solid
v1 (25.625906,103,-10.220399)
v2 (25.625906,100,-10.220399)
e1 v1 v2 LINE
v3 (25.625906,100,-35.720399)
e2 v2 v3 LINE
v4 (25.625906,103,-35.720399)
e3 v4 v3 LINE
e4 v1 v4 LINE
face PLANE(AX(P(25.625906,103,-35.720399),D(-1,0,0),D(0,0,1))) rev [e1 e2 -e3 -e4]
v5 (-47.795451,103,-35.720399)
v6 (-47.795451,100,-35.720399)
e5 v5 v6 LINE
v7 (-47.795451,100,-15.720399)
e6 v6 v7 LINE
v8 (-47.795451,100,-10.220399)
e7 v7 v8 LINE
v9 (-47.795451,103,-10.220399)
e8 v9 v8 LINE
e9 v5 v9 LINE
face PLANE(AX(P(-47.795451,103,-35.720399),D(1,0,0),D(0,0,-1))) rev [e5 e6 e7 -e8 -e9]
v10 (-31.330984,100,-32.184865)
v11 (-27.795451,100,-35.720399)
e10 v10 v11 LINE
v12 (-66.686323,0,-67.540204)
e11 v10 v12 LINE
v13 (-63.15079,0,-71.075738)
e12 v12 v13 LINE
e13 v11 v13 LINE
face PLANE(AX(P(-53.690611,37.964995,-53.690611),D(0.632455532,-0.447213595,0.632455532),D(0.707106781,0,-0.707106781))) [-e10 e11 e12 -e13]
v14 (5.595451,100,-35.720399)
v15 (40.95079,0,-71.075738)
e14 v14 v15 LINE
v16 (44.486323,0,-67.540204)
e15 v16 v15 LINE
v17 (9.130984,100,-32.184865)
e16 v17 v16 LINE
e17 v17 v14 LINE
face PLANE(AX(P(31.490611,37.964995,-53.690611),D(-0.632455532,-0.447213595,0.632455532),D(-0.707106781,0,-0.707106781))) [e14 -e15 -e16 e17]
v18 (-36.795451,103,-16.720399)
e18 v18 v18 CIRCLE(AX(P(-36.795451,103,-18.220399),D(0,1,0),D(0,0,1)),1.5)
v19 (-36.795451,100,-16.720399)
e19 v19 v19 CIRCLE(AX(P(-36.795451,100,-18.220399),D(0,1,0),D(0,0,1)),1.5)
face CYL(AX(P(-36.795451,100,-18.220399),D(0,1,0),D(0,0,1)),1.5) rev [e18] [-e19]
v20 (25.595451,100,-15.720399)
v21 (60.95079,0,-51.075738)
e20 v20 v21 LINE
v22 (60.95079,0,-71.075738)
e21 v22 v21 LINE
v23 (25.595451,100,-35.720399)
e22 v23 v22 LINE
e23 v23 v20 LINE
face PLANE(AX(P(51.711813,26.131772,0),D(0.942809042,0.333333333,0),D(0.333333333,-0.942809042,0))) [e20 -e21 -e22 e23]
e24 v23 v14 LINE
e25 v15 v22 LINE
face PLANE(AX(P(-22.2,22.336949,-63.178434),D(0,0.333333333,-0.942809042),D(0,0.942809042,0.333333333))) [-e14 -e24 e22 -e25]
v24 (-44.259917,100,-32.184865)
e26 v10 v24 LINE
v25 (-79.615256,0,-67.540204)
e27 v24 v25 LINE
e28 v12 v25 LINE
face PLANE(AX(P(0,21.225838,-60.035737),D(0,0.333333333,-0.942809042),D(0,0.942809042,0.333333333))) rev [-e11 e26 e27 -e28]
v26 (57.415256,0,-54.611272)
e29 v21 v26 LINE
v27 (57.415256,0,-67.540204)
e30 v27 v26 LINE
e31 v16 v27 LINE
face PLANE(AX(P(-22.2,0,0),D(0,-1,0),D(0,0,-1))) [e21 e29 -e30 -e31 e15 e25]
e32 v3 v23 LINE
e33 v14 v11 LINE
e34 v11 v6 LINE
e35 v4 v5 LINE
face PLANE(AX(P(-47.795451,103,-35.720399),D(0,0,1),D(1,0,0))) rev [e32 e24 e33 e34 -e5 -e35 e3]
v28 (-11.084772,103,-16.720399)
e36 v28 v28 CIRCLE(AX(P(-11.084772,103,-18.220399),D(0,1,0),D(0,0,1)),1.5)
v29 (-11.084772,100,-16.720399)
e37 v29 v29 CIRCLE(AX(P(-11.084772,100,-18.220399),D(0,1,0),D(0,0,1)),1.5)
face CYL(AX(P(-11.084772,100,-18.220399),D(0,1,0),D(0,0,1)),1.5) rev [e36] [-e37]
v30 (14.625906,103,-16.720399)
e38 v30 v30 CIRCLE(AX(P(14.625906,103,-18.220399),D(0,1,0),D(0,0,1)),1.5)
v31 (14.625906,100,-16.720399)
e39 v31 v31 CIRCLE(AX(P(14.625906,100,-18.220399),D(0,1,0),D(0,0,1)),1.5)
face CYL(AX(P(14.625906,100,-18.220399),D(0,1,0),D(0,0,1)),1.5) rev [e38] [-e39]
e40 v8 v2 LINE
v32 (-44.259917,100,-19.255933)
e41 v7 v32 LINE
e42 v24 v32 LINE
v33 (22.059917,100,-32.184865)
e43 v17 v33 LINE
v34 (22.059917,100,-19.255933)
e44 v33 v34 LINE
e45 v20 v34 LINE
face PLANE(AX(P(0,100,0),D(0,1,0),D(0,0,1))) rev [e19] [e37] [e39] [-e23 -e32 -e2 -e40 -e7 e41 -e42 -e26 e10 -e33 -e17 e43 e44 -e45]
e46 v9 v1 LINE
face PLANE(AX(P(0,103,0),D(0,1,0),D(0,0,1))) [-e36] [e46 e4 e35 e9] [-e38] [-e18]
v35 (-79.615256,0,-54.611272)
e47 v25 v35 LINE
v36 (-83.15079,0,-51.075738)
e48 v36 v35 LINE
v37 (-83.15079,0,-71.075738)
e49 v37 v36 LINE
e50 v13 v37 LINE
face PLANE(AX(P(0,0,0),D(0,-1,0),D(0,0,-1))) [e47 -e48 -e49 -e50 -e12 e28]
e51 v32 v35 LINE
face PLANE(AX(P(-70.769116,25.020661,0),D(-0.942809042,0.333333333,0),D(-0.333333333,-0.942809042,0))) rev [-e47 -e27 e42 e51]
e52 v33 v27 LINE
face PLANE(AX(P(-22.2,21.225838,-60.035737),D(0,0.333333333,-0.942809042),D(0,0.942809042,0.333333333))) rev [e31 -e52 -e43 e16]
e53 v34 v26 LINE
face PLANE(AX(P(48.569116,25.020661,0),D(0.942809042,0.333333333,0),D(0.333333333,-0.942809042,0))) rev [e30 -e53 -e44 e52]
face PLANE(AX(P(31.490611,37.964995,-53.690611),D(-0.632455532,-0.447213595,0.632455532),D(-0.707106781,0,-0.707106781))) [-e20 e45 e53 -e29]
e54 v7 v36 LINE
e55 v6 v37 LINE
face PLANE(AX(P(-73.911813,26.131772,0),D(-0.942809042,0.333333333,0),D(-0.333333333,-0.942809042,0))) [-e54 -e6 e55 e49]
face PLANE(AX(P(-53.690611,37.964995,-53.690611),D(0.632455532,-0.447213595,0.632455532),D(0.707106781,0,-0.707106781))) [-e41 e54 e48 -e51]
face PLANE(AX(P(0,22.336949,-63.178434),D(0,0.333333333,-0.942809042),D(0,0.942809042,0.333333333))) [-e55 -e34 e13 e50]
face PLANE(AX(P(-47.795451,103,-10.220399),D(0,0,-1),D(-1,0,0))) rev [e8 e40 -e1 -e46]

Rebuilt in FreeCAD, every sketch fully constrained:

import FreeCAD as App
import Part
import Sketcher
from FreeCAD import Vector
Q = App.Units.Quantity

doc = App.newDocument("Part")
params = doc.addObject("Spreadsheet::Sheet", "Params")
for row, (alias, value) in enumerate([
    ("sketch1_height", "25.5 mm"),
    ("pad1_length", "3 mm"),
    ("sketch2_diameter", "3 mm"),
    ("pocket1_length", "3 mm"),
    ("sketch3_width", "20 mm"),
    ("sketch4_width", "20 mm"),
], start=1):
    params.set(f"A{row}", alias)
    params.set(f"B{row}", "=" + value)
    params.setAlias(f"B{row}", alias)

body = doc.addObject("PartDesign::Body", "Body")

sketch1 = body.newObject("Sketcher::SketchObject", "Sketch")
sketch1.AttachmentSupport = (doc.getObject("XZ_Plane"), [""])
sketch1.MapMode = "FlatFace"
sketch1.AttachmentOffset = App.Placement(Vector(0, 0, -100), App.Rotation())
sketch1.addGeometry(Part.LineSegment(Vector(-48, -36, 0), Vector(-48, -10, 0)), False)
sketch1.addGeometry(Part.LineSegment(Vector(-48, -10, 0), Vector(26, -10, 0)), False)
sketch1.addGeometry(Part.LineSegment(Vector(26, -10, 0), Vector(26, -36, 0)), False)
sketch1.addGeometry(Part.LineSegment(Vector(26, -36, 0), Vector(-48, -36, 0)), False)
sketch1.addConstraint(Sketcher.Constraint("Coincident", 0, 2, 1, 1))
sketch1.addConstraint(Sketcher.Constraint("Coincident", 1, 2, 2, 1))
sketch1.addConstraint(Sketcher.Constraint("Coincident", 2, 2, 3, 1))
sketch1.addConstraint(Sketcher.Constraint("Coincident", 3, 2, 0, 1))
sketch1.addConstraint(Sketcher.Constraint("Vertical", 0))
sketch1.addConstraint(Sketcher.Constraint("Horizontal", 1))
sketch1.addConstraint(Sketcher.Constraint("Vertical", 2))
sketch1.addConstraint(Sketcher.Constraint("Horizontal", 3))
sketch1.addConstraint(Sketcher.Constraint("DistanceY", 0, 1, 0, 2, Q("25.5 mm")))
sketch1.addConstraint(Sketcher.Constraint("DistanceY", 0, 2, -1, 1, Q("10.220399 mm")))
sketch1.addConstraint(Sketcher.Constraint("DistanceX", 1, 1, 1, 2, Q("73.421356 mm")))
sketch1.addConstraint(Sketcher.Constraint("DistanceX", 0, 2, -1, 1, Q("47.795451 mm")))
sketch1.setExpression("Constraints[8]", "Params.sketch1_height")
pad1 = body.newObject("PartDesign::Pad", "Pad")
pad1.Profile = sketch1
pad1.setExpression("Length", "Params.pad1_length")
pad1.Reversed = True

sketch2 = body.newObject("Sketcher::SketchObject", "Sketch001")
sketch2.AttachmentSupport = (doc.getObject("XZ_Plane"), [""])
sketch2.MapMode = "FlatFace"
sketch2.AttachmentOffset = App.Placement(Vector(0, 0, -103), App.Rotation())
sketch2.addGeometry(Part.Circle(Vector(-36.8, -18.2, 0), Vector(0, 0, 1), 1.5), False)
sketch2.addGeometry(Part.Circle(Vector(14.6, -18.2, 0), Vector(0, 0, 1), 1.5), False)
sketch2.addGeometry(Part.Circle(Vector(-11.1, -18.2, 0), Vector(0, 0, 1), 1.5), False)
sketch2.addConstraint(Sketcher.Constraint("Equal", 0, 1))
sketch2.addConstraint(Sketcher.Constraint("Equal", 1, 2))
sketch2.addConstraint(Sketcher.Constraint("Horizontal", 0, 3, 1, 3))
sketch2.addConstraint(Sketcher.Constraint("Horizontal", 1, 3, 2, 3))
sketch2.addConstraint(Sketcher.Constraint("Diameter", 0, Q("3 mm")))
sketch2.addConstraint(Sketcher.Constraint("DistanceY", 0, 3, -1, 1, Q("18.220399 mm")))
sketch2.addConstraint(Sketcher.Constraint("DistanceX", 0, 3, -1, 1, Q("36.795451 mm")))
sketch2.addConstraint(Sketcher.Constraint("DistanceX", 2, 3, 1, 3, Q("25.710678 mm")))
sketch2.addConstraint(Sketcher.Constraint("DistanceX", 0, 3, 2, 3, Q("25.710678 mm")))
sketch2.setExpression("Constraints[4]", "Params.sketch2_diameter")
pocket1 = body.newObject("PartDesign::Pocket", "Pocket")
pocket1.Profile = sketch2
pocket1.setExpression("Length", "Params.pocket1_length")
pocket1.Reversed = True

sketch3 = body.newObject("Sketcher::SketchObject", "Sketch002")
sketch3.AttachmentSupport = (doc.getObject("XZ_Plane"), [""])
sketch3.MapMode = "FlatFace"
sketch3.AttachmentOffset = App.Placement(Vector(0, 0, -100), App.Rotation())
sketch3.addGeometry(Part.LineSegment(Vector(-28, -36, 0), Vector(-48, -36, 0)), False)
sketch3.addGeometry(Part.LineSegment(Vector(-48, -36, 0), Vector(-48, -16, 0)), False)
sketch3.addGeometry(Part.LineSegment(Vector(-48, -16, 0), Vector(-28, -36, 0)), False)
sketch3.addConstraint(Sketcher.Constraint("Coincident", 0, 2, 1, 1))
sketch3.addConstraint(Sketcher.Constraint("Coincident", 1, 2, 2, 1))
sketch3.addConstraint(Sketcher.Constraint("Coincident", 2, 2, 0, 1))
sketch3.addConstraint(Sketcher.Constraint("Horizontal", 0))
sketch3.addConstraint(Sketcher.Constraint("Vertical", 1))
sketch3.addConstraint(Sketcher.Constraint("Equal", 0, 1))
sketch3.addConstraint(Sketcher.Constraint("DistanceX", 0, 2, 0, 1, Q("20 mm")))
sketch3.addConstraint(Sketcher.Constraint("DistanceY", 0, 2, -1, 1, Q("35.720399 mm")))
sketch3.addConstraint(Sketcher.Constraint("DistanceX", 0, 2, -1, 1, Q("47.795451 mm")))
sketch3.setExpression("Constraints[6]", "Params.sketch3_width")

sketch4 = body.newObject("Sketcher::SketchObject", "Sketch003")
sketch4.AttachmentSupport = (doc.getObject("XZ_Plane"), [""])
sketch4.MapMode = "FlatFace"
sketch4.addGeometry(Part.LineSegment(Vector(-63, -71, 0), Vector(-83, -71, 0)), False)
sketch4.addGeometry(Part.LineSegment(Vector(-83, -71, 0), Vector(-83, -51, 0)), False)
sketch4.addGeometry(Part.LineSegment(Vector(-83, -51, 0), Vector(-63, -71, 0)), False)
sketch4.addConstraint(Sketcher.Constraint("Coincident", 0, 2, 1, 1))
sketch4.addConstraint(Sketcher.Constraint("Coincident", 1, 2, 2, 1))
sketch4.addConstraint(Sketcher.Constraint("Coincident", 2, 2, 0, 1))
sketch4.addConstraint(Sketcher.Constraint("Horizontal", 0))
sketch4.addConstraint(Sketcher.Constraint("Vertical", 1))
sketch4.addConstraint(Sketcher.Constraint("Equal", 0, 1))
sketch4.addConstraint(Sketcher.Constraint("DistanceX", 0, 2, 0, 1, Q("20 mm")))
sketch4.addConstraint(Sketcher.Constraint("DistanceX", 0, 2, -1, 1, Q("83.15079 mm")))
sketch4.addConstraint(Sketcher.Constraint("DistanceY", 0, 2, -1, 1, Q("71.075738 mm")))
sketch4.setExpression("Constraints[6]", "Params.sketch4_width")

additiveloft = body.newObject("PartDesign::AdditiveLoft", "AdditiveLoft")
additiveloft.Profile = sketch3
additiveloft.Sections = [sketch4]

sketch5 = body.newObject("Sketcher::SketchObject", "Sketch004")
sketch5.AttachmentSupport = (doc.getObject("XZ_Plane"), [""])
sketch5.MapMode = "FlatFace"
sketch5.AttachmentOffset = App.Placement(Vector(0, 0, -100), App.Rotation())
sketch5.addGeometry(Part.LineSegment(Vector(-44, -19, 0), Vector(-31, -32, 0)), False)
sketch5.addGeometry(Part.LineSegment(Vector(-31, -32, 0), Vector(-44, -32, 0)), False)
sketch5.addGeometry(Part.LineSegment(Vector(-44, -32, 0), Vector(-44, -19, 0)), False)
sketch5.addConstraint(Sketcher.Constraint("Coincident", 0, 2, 1, 1))
sketch5.addConstraint(Sketcher.Constraint("Coincident", 1, 2, 2, 1))
sketch5.addConstraint(Sketcher.Constraint("Coincident", 2, 2, 0, 1))
sketch5.addConstraint(Sketcher.Constraint("Horizontal", 1))
sketch5.addConstraint(Sketcher.Constraint("Vertical", 2))
sketch5.addConstraint(Sketcher.Constraint("Equal", 1, 2))
sketch5.addConstraint(Sketcher.Constraint("Distance", 0, Q("18.284271 mm")))
sketch5.addConstraint(Sketcher.Constraint("DistanceX", 0, 2, -1, 1, Q("31.330984 mm")))
sketch5.addConstraint(Sketcher.Constraint("DistanceY", 0, 2, -1, 1, Q("32.184865 mm")))

sketch6 = body.newObject("Sketcher::SketchObject", "Sketch005")
sketch6.AttachmentSupport = (doc.getObject("XZ_Plane"), [""])
sketch6.MapMode = "FlatFace"
sketch6.addGeometry(Part.LineSegment(Vector(-80, -55, 0), Vector(-67, -68, 0)), False)
sketch6.addGeometry(Part.LineSegment(Vector(-67, -68, 0), Vector(-80, -68, 0)), False)
sketch6.addGeometry(Part.LineSegment(Vector(-80, -68, 0), Vector(-80, -55, 0)), False)
sketch6.addConstraint(Sketcher.Constraint("Coincident", 0, 2, 1, 1))
sketch6.addConstraint(Sketcher.Constraint("Coincident", 1, 2, 2, 1))
sketch6.addConstraint(Sketcher.Constraint("Coincident", 2, 2, 0, 1))
sketch6.addConstraint(Sketcher.Constraint("Horizontal", 1))
sketch6.addConstraint(Sketcher.Constraint("Vertical", 2))
sketch6.addConstraint(Sketcher.Constraint("Equal", 1, 2))
sketch6.addConstraint(Sketcher.Constraint("Distance", 0, Q("18.284271 mm")))
sketch6.addConstraint(Sketcher.Constraint("DistanceY", 2, 2, -1, 1, Q("54.611272 mm")))
sketch6.addConstraint(Sketcher.Constraint("DistanceX", 0, 2, -1, 1, Q("66.686323 mm")))

subtractiveloft = body.newObject("PartDesign::SubtractiveLoft", "SubtractiveLoft")
subtractiveloft.Profile = sketch5
subtractiveloft.Sections = [sketch6]
doc.recompute()

datumplane = body.newObject("PartDesign::Plane", "DatumPlane")
datumplane.AttachmentSupport = (doc.getObject("YZ_Plane"), [""])
datumplane.MapMode = "FlatFace"
datumplane.AttachmentOffset = App.Placement(Vector(0, 0, -11.1), App.Rotation())
mirrored = body.newObject("PartDesign::Mirrored", "Mirrored")
mirrored.Originals = [additiveloft]
mirrored.MirrorPlane = (datumplane, [""])
body.Tip = mirrored
doc.recompute()

datumplane2 = body.newObject("PartDesign::Plane", "DatumPlane001")
datumplane2.AttachmentSupport = (doc.getObject("YZ_Plane"), [""])
datumplane2.MapMode = "FlatFace"
datumplane2.AttachmentOffset = App.Placement(Vector(0, 0, -11.1), App.Rotation())
mirrored2 = body.newObject("PartDesign::Mirrored", "Mirrored001")
mirrored2.Originals = [subtractiveloft]
mirrored2.MirrorPlane = (datumplane2, [""])
body.Tip = mirrored2

doc.recompute()
